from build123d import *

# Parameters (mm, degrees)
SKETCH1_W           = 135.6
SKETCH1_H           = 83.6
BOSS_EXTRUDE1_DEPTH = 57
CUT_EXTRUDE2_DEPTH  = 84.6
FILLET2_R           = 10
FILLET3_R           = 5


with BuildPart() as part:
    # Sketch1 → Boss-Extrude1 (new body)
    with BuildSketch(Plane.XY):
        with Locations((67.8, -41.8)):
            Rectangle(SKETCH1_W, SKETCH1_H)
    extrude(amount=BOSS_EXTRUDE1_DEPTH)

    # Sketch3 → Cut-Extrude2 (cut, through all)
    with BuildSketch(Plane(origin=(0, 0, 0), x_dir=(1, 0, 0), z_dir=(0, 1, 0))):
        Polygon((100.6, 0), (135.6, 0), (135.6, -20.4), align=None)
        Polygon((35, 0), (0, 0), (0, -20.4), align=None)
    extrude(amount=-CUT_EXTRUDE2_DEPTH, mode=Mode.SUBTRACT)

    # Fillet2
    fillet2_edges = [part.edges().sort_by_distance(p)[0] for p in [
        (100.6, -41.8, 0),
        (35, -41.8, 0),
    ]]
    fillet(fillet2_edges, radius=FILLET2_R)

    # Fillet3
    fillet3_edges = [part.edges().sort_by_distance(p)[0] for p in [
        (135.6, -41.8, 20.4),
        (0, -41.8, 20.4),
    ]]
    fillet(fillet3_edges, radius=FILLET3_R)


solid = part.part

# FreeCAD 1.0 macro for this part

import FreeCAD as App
import Part
import Sketcher
from FreeCAD import Vector
Q = App.Units.Quantity


def edges_at(feature, points):
    """Names of the edges that pass closest to the given points."""
    edges = feature.Shape.Edges
    near = lambda p: min(range(len(edges)), key=lambda i: edges[i].distToShape(Part.Vertex(*p))[0])
    return sorted({f"Edge{near(p) + 1}" for p in points})

doc = App.newDocument("Part")
body = doc.addObject("PartDesign::Body", "Body")

# Sketch on XY plane
sketch1 = body.newObject("Sketcher::SketchObject", "Sketch")
sketch1.AttachmentSupport = (doc.getObject("XY_Plane"), [""])
sketch1.MapMode = "FlatFace"
sketch1.addGeometry([
    Part.LineSegment(Vector(0, 0, 0), Vector(0, -83.6, 0)),
    Part.LineSegment(Vector(0, -83.6, 0), Vector(135.6, -83.6, 0)),
    Part.LineSegment(Vector(135.6, -83.6, 0), Vector(135.6, 0, 0)),
    Part.LineSegment(Vector(135.6, 0, 0), Vector(0, 0, 0)),
], False)
sketch1.addConstraint([
    Sketcher.Constraint("Coincident", 0, 2, 1, 1),
    Sketcher.Constraint("Coincident", 1, 2, 2, 1),
    Sketcher.Constraint("Coincident", 2, 2, 3, 1),
    Sketcher.Constraint("Coincident", 3, 2, 0, 1),
    Sketcher.Constraint("Vertical", 0),
    Sketcher.Constraint("Horizontal", 1),
    Sketcher.Constraint("Vertical", 2),
    Sketcher.Constraint("Horizontal", 3),
    Sketcher.Constraint("Coincident", 3, 2, -1, 1),
    Sketcher.Constraint("DistanceX", 1, 1, 1, 2, Q("135.6 mm")),
    Sketcher.Constraint("DistanceY", 0, 2, 0, 1, Q("83.6 mm")),
])
pad1 = body.newObject("PartDesign::Pad", "Pad")
pad1.Profile = sketch1
pad1.Length = 57

# Sketch on XZ plane
sketch2 = body.newObject("Sketcher::SketchObject", "Sketch001")
sketch2.AttachmentSupport = (doc.getObject("XZ_Plane"), [""])
sketch2.MapMode = "FlatFace"
sketch2.addGeometry([
    Part.LineSegment(Vector(135.6, 0, 0), Vector(100.6, 0, 0)),  # 0
    Part.LineSegment(Vector(100.6, 0, 0), Vector(135.6, 20.4, 0)),  # 1
    Part.LineSegment(Vector(135.6, 20.4, 0), Vector(135.6, 0, 0)),  # 2
    Part.LineSegment(Vector(35, 0, 0), Vector(0, 0, 0)),  # 3
    Part.LineSegment(Vector(0, 0, 0), Vector(0, 20.4, 0)),  # 4
    Part.LineSegment(Vector(0, 20.4, 0), Vector(35, 0, 0)),  # 5
], False)
sketch2.addConstraint([
    Sketcher.Constraint("Coincident", 0, 2, 1, 1),
    Sketcher.Constraint("Coincident", 1, 2, 2, 1),
    Sketcher.Constraint("Coincident", 2, 2, 0, 1),
    Sketcher.Constraint("Coincident", 3, 2, 4, 1),
    Sketcher.Constraint("Coincident", 4, 2, 5, 1),
    Sketcher.Constraint("Coincident", 5, 2, 3, 1),
    Sketcher.Constraint("Horizontal", 0),
    Sketcher.Constraint("Vertical", 2),
    Sketcher.Constraint("Horizontal", 3),
    Sketcher.Constraint("Vertical", 4),
    Sketcher.Constraint("Coincident", 3, 2, -1, 1),
    Sketcher.Constraint("PointOnObject", 0, 2, -1),
    Sketcher.Constraint("Horizontal", 1, 2, 4, 2),
    Sketcher.Constraint("Equal", 0, 3),
    Sketcher.Constraint("DistanceX", 0, 2, 0, 1, Q("35 mm")),
    Sketcher.Constraint("DistanceY", 2, 2, 2, 1, Q("20.4 mm")),
    Sketcher.Constraint("DistanceX", -1, 1, 0, 2, Q("100.6 mm")),
])
pocket1 = body.newObject("PartDesign::Pocket", "Pocket")
pocket1.Profile = sketch2
pocket1.Type = "ThroughAll"
pocket1.Reversed = True
doc.recompute()

fillet = body.newObject("PartDesign::Fillet", "Fillet")
fillet.Base = (pocket1, edges_at(pocket1, [(100.6, -41.8, 0), (35, -41.8, 0)]))
fillet.Radius = 10
doc.recompute()

fillet2 = body.newObject("PartDesign::Fillet", "Fillet001")
fillet2.Base = (fillet, edges_at(fillet, [(135.6, -41.8, 20.4), (0, -41.8, 20.4)]))
fillet2.Radius = 5

doc.recompute()
